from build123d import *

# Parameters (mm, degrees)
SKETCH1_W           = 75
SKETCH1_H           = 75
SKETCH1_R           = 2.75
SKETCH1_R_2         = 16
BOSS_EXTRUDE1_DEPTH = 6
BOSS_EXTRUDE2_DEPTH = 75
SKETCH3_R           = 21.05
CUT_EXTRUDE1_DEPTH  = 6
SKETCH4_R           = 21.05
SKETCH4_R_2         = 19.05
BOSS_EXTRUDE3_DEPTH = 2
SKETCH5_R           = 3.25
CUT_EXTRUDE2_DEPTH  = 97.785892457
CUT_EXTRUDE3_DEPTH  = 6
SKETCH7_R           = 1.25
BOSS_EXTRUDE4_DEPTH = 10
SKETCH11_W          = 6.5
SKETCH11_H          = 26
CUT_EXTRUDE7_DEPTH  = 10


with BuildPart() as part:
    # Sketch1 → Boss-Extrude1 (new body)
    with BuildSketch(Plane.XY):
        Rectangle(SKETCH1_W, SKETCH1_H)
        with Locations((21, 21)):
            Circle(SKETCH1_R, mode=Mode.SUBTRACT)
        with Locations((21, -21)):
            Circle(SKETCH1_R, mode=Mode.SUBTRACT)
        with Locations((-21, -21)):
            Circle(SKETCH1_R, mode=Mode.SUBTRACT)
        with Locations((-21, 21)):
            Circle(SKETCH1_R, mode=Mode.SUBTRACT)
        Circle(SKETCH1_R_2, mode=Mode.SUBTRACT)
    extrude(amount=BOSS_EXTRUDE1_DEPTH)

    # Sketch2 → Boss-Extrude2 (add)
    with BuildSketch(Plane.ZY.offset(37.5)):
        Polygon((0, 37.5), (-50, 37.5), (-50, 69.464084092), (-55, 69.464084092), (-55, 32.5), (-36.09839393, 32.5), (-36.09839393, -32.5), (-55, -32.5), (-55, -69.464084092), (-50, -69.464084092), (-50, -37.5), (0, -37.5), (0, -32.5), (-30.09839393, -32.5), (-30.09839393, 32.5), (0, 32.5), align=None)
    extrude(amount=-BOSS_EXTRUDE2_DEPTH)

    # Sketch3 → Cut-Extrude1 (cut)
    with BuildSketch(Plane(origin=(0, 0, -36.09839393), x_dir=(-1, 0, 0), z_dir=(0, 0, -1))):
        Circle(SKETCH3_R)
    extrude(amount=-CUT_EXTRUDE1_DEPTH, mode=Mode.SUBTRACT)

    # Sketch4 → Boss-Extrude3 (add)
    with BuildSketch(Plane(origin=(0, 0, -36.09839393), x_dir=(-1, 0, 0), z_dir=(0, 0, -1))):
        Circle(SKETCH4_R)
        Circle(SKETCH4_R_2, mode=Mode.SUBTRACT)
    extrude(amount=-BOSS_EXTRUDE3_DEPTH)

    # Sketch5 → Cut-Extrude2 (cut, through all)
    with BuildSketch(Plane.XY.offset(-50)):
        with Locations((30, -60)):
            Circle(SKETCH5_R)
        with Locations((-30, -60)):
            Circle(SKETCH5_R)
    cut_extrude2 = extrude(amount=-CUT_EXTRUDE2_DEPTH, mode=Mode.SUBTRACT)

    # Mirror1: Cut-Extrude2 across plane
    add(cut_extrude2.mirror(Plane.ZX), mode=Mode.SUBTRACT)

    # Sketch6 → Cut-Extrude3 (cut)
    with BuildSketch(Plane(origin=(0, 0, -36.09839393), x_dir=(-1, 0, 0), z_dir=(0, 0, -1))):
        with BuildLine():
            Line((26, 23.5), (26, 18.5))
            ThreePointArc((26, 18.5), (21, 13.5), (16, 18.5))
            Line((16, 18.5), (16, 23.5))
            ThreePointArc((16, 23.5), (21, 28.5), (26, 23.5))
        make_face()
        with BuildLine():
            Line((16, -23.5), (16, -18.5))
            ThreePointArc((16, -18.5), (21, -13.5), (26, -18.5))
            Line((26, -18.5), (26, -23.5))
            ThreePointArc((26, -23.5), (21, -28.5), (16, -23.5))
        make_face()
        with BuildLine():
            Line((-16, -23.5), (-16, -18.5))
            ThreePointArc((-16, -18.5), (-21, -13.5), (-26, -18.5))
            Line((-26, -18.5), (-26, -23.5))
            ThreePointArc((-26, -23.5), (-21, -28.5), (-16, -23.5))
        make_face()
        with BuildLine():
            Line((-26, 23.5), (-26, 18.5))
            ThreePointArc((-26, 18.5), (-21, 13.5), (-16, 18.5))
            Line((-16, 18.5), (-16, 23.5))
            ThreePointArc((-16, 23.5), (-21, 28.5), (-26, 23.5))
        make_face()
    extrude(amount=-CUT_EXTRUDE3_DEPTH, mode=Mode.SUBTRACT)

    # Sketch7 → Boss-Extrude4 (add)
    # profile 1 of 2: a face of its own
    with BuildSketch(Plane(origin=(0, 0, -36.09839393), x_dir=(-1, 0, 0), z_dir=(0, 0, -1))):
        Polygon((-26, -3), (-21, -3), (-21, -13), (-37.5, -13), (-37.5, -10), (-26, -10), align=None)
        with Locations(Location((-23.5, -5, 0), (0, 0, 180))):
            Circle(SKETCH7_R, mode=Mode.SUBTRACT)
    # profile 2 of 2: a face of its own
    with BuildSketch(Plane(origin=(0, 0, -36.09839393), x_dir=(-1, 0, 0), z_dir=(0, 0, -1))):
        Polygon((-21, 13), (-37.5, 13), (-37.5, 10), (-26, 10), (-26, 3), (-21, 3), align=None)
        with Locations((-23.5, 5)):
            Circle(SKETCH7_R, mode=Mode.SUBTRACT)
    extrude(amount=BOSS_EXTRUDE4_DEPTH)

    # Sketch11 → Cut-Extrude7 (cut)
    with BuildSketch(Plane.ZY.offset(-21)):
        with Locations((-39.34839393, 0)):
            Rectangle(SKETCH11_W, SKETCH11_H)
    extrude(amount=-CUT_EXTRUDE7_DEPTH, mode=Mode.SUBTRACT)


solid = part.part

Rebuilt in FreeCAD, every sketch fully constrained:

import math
import FreeCAD as App
import Part
import Sketcher
from FreeCAD import Vector
Q = App.Units.Quantity

doc = App.newDocument("Part")
body = doc.addObject("PartDesign::Body", "Body")

sketch1 = body.newObject("Sketcher::SketchObject", "Sketch")
sketch1.AttachmentSupport = (doc.getObject("XY_Plane"), [""])
sketch1.MapMode = "FlatFace"
sketch1.addGeometry(Part.LineSegment(Vector(-37.5, 37.5, 0), Vector(-37.5, -37.5, 0)), False)
sketch1.addGeometry(Part.LineSegment(Vector(-37.5, -37.5, 0), Vector(37.5, -37.5, 0)), False)
sketch1.addGeometry(Part.LineSegment(Vector(37.5, -37.5, 0), Vector(37.5, 37.5, 0)), False)
sketch1.addGeometry(Part.LineSegment(Vector(37.5, 37.5, 0), Vector(-37.5, 37.5, 0)), False)
sketch1.addGeometry(Part.Circle(Vector(-21, -21, 0), Vector(0, 0, 1), 2.8), False)
sketch1.addGeometry(Part.Circle(Vector(21, -21, 0), Vector(0, 0, 1), 2.8), False)
sketch1.addGeometry(Part.Circle(Vector(-21, 21, 0), Vector(0, 0, 1), 2.8), False)
sketch1.addGeometry(Part.Circle(Vector(0, 0, 0), Vector(0, 0, 1), 16), False)
sketch1.addGeometry(Part.Circle(Vector(21, 21, 0), Vector(0, 0, 1), 2.8), False)
sketch1.addConstraint(Sketcher.Constraint("Coincident", 0, 2, 1, 1))
sketch1.addConstraint(Sketcher.Constraint("Coincident", 1, 2, 2, 1))
sketch1.addConstraint(Sketcher.Constraint("Coincident", 2, 2, 3, 1))
sketch1.addConstraint(Sketcher.Constraint("Coincident", 3, 2, 0, 1))
sketch1.addConstraint(Sketcher.Constraint("Vertical", 0))
sketch1.addConstraint(Sketcher.Constraint("Horizontal", 1))
sketch1.addConstraint(Sketcher.Constraint("Vertical", 2))
sketch1.addConstraint(Sketcher.Constraint("Horizontal", 3))
sketch1.addConstraint(Sketcher.Constraint("Coincident", 7, 3, -1, 1))
sketch1.addConstraint(Sketcher.Constraint("Equal", 4, 5))
sketch1.addConstraint(Sketcher.Constraint("Equal", 5, 6))
sketch1.addConstraint(Sketcher.Constraint("Equal", 6, 8))
sketch1.addConstraint(Sketcher.Constraint("Symmetric", 5, 3, 6, 3, -1, 1))
sketch1.addConstraint(Sketcher.Constraint("Symmetric", 4, 3, 8, 3, -1, 1))
sketch1.addConstraint(Sketcher.Constraint("Symmetric", 0, 2, 2, 2, -1, 1))
sketch1.addConstraint(Sketcher.Constraint("Symmetric", 4, 3, 5, 3, -2))
sketch1.addConstraint(Sketcher.Constraint("Equal", 3, 0))
sketch1.addConstraint(Sketcher.Constraint("Diameter", 7, Q("32 mm")))
sketch1.addConstraint(Sketcher.Constraint("Diameter", 4, Q("5.5 mm")))
sketch1.addConstraint(Sketcher.Constraint("DistanceX", 1, 1, 1, 2, Q("75 mm")))
sketch1.addConstraint(Sketcher.Constraint("DistanceX", 4, 3, -1, 1, Q("21 mm")))
sketch1.addConstraint(Sketcher.Constraint("DistanceY", 4, 3, -1, 1, Q("21 mm")))
pad1 = body.newObject("PartDesign::Pad", "Pad")
pad1.Profile = sketch1
pad1.Length = 6

sketch2 = body.newObject("Sketcher::SketchObject", "Sketch001")
sketch2.AttachmentSupport = (doc.getObject("YZ_Plane"), [""])
sketch2.MapMode = "FlatFace"
sketch2.AttachmentOffset = App.Placement(Vector(0, 0, -37.5), App.Rotation())
sketch2.addGeometry(Part.LineSegment(Vector(38, 0, 0), Vector(38, -50, 0)), False)
sketch2.addGeometry(Part.LineSegment(Vector(38, -50, 0), Vector(69, -50, 0)), False)
sketch2.addGeometry(Part.LineSegment(Vector(69, -50, 0), Vector(69, -55, 0)), False)
sketch2.addGeometry(Part.LineSegment(Vector(69, -55, 0), Vector(32, -55, 0)), False)
sketch2.addGeometry(Part.LineSegment(Vector(32, -55, 0), Vector(32, -36, 0)), False)
sketch2.addGeometry(Part.LineSegment(Vector(32, -36, 0), Vector(-32, -36, 0)), False)
sketch2.addGeometry(Part.LineSegment(Vector(-32, -36, 0), Vector(-32, -55, 0)), False)
sketch2.addGeometry(Part.LineSegment(Vector(-32, -55, 0), Vector(-69, -55, 0)), False)
sketch2.addGeometry(Part.LineSegment(Vector(-69, -55, 0), Vector(-69, -50, 0)), False)
sketch2.addGeometry(Part.LineSegment(Vector(-69, -50, 0), Vector(-38, -50, 0)), False)
sketch2.addGeometry(Part.LineSegment(Vector(-38, -50, 0), Vector(-38, 0, 0)), False)
sketch2.addGeometry(Part.LineSegment(Vector(-38, 0, 0), Vector(-32, 0, 0)), False)
sketch2.addGeometry(Part.LineSegment(Vector(-32, 0, 0), Vector(-32, -30, 0)), False)
sketch2.addGeometry(Part.LineSegment(Vector(-32, -30, 0), Vector(32, -30, 0)), False)
sketch2.addGeometry(Part.LineSegment(Vector(32, -30, 0), Vector(32, 0, 0)), False)
sketch2.addGeometry(Part.LineSegment(Vector(32, 0, 0), Vector(38, 0, 0)), False)
sketch2.addConstraint(Sketcher.Constraint("Coincident", 0, 2, 1, 1))
sketch2.addConstraint(Sketcher.Constraint("Coincident", 1, 2, 2, 1))
sketch2.addConstraint(Sketcher.Constraint("Coincident", 2, 2, 3, 1))
sketch2.addConstraint(Sketcher.Constraint("Coincident", 3, 2, 4, 1))
sketch2.addConstraint(Sketcher.Constraint("Coincident", 4, 2, 5, 1))
sketch2.addConstraint(Sketcher.Constraint("Coincident", 5, 2, 6, 1))
sketch2.addConstraint(Sketcher.Constraint("Coincident", 6, 2, 7, 1))
sketch2.addConstraint(Sketcher.Constraint("Coincident", 7, 2, 8, 1))
sketch2.addConstraint(Sketcher.Constraint("Coincident", 8, 2, 9, 1))
sketch2.addConstraint(Sketcher.Constraint("Coincident", 9, 2, 10, 1))
sketch2.addConstraint(Sketcher.Constraint("Coincident", 10, 2, 11, 1))
sketch2.addConstraint(Sketcher.Constraint("Coincident", 11, 2, 12, 1))
sketch2.addConstraint(Sketcher.Constraint("Coincident", 12, 2, 13, 1))
sketch2.addConstraint(Sketcher.Constraint("Coincident", 13, 2, 14, 1))
sketch2.addConstraint(Sketcher.Constraint("Coincident", 14, 2, 15, 1))
sketch2.addConstraint(Sketcher.Constraint("Coincident", 15, 2, 0, 1))
sketch2.addConstraint(Sketcher.Constraint("Vertical", 0))
sketch2.addConstraint(Sketcher.Constraint("Horizontal", 1))
sketch2.addConstraint(Sketcher.Constraint("Vertical", 2))
sketch2.addConstraint(Sketcher.Constraint("Horizontal", 3))
sketch2.addConstraint(Sketcher.Constraint("Vertical", 4))
sketch2.addConstraint(Sketcher.Constraint("Horizontal", 5))
sketch2.addConstraint(Sketcher.Constraint("Vertical", 6))
sketch2.addConstraint(Sketcher.Constraint("Horizontal", 7))
sketch2.addConstraint(Sketcher.Constraint("Vertical", 8))
sketch2.addConstraint(Sketcher.Constraint("Horizontal", 9))
sketch2.addConstraint(Sketcher.Constraint("Vertical", 10))
sketch2.addConstraint(Sketcher.Constraint("Horizontal", 11))
sketch2.addConstraint(Sketcher.Constraint("Vertical", 12))
sketch2.addConstraint(Sketcher.Constraint("Horizontal", 13))
sketch2.addConstraint(Sketcher.Constraint("Vertical", 14))
sketch2.addConstraint(Sketcher.Constraint("Horizontal", 15))
sketch2.addConstraint(Sketcher.Constraint("Symmetric", 11, 2, 14, 2, -1, 1))
sketch2.addConstraint(Sketcher.Constraint("Symmetric", 3, 2, 6, 2, -2))
sketch2.addConstraint(Sketcher.Constraint("Symmetric", 1, 2, 8, 2, -2))
sketch2.addConstraint(Sketcher.Constraint("Symmetric", 10, 2, 15, 2, -2))
sketch2.addConstraint(Sketcher.Constraint("Vertical", 6, 2, 11, 2))
sketch2.addConstraint(Sketcher.Constraint("Equal", 15, 2))
sketch2.addConstraint(Sketcher.Constraint("DistanceX", 5, 2, 5, 1, Q("65 mm")))
sketch2.addConstraint(Sketcher.Constraint("DistanceX", 11, 1, 11, 2, Q("5 mm")))
sketch2.addConstraint(Sketcher.Constraint("DistanceY", 0, 2, 0, 1, Q("50 mm")))
sketch2.addConstraint(Sketcher.Constraint("DistanceY", 5, 2, 12, 2, Q("6 mm")))
sketch2.addConstraint(Sketcher.Constraint("DistanceX", 1, 1, 1, 2, Q("31.964084 mm")))
sketch2.addConstraint(Sketcher.Constraint("DistanceY", 4, 1, 4, 2, Q("18.901606 mm")))
pad2 = body.newObject("PartDesign::Pad", "Pad001")
pad2.Profile = sketch2
pad2.Length = 75

sketch3 = body.newObject("Sketcher::SketchObject", "Sketch002")
sketch3.AttachmentSupport = (doc.getObject("XY_Plane"), [""])
sketch3.MapMode = "FlatFace"
sketch3.AttachmentOffset = App.Placement(Vector(0, 0, -36.098394), App.Rotation())
sketch3.addGeometry(Part.Circle(Vector(0, 0, 0), Vector(0, 0, 1), 21), False)
sketch3.addConstraint(Sketcher.Constraint("Coincident", 0, 3, -1, 1))
sketch3.addConstraint(Sketcher.Constraint("Diameter", 0, Q("42.1 mm")))
pocket1 = body.newObject("PartDesign::Pocket", "Pocket")
pocket1.Profile = sketch3
pocket1.Length = 6
pocket1.Reversed = True

sketch4 = body.newObject("Sketcher::SketchObject", "Sketch003")
sketch4.AttachmentSupport = (doc.getObject("XY_Plane"), [""])
sketch4.MapMode = "FlatFace"
sketch4.AttachmentOffset = App.Placement(Vector(0, 0, -36.098394), App.Rotation())
sketch4.addGeometry(Part.Circle(Vector(0, 0, 0), Vector(0, 0, 1), 21), False)
sketch4.addGeometry(Part.Circle(Vector(0, 0, 0), Vector(0, 0, 1), 19), False)
sketch4.addConstraint(Sketcher.Constraint("Coincident", 0, 3, -1, 1))
sketch4.addConstraint(Sketcher.Constraint("Coincident", 1, 3, -1, 1))
sketch4.addConstraint(Sketcher.Constraint("Diameter", 0, Q("42.1 mm")))
sketch4.addConstraint(Sketcher.Constraint("Diameter", 1, Q("38.1 mm")))
pad3 = body.newObject("PartDesign::Pad", "Pad002")
pad3.Profile = sketch4
pad3.Length = 2

sketch5 = body.newObject("Sketcher::SketchObject", "Sketch004")
sketch5.AttachmentSupport = (doc.getObject("XY_Plane"), [""])
sketch5.MapMode = "FlatFace"
sketch5.AttachmentOffset = App.Placement(Vector(0, 0, -50), App.Rotation())
sketch5.addGeometry(Part.Circle(Vector(30, -60, 0), Vector(0, 0, 1), 3.2), False)
sketch5.addGeometry(Part.Circle(Vector(-30, -60, 0), Vector(0, 0, 1), 3.2), False)
sketch5.addConstraint(Sketcher.Constraint("Equal", 0, 1))
sketch5.addConstraint(Sketcher.Constraint("Symmetric", 0, 3, 1, 3, -2))
sketch5.addConstraint(Sketcher.Constraint("Diameter", 0, Q("6.5 mm")))
sketch5.addConstraint(Sketcher.Constraint("DistanceX", -1, 1, 0, 3, Q("30 mm")))
sketch5.addConstraint(Sketcher.Constraint("DistanceY", 0, 3, -1, 1, Q("60 mm")))
pocket2 = body.newObject("PartDesign::Pocket", "Pocket001")
pocket2.Profile = sketch5
pocket2.Type = "ThroughAll"
doc.recompute()

mirrored = body.newObject("PartDesign::Mirrored", "Mirrored")
mirrored.Originals = [pocket2]
mirrored.MirrorPlane = (doc.getObject("XZ_Plane"), [""])
body.Tip = mirrored

sketch6 = body.newObject("Sketcher::SketchObject", "Sketch005")
sketch6.AttachmentSupport = (doc.getObject("XY_Plane"), [""])
sketch6.MapMode = "FlatFace"
sketch6.AttachmentOffset = App.Placement(Vector(0, 0, -36.098394), App.Rotation())
sketch6.addGeometry(Part.LineSegment(Vector(-26, 18, 0), Vector(-26, 24, 0)), False)
sketch6.addGeometry(Part.ArcOfCircle(Part.Circle(Vector(-21, 24, 0), Vector(0, 0, 1), 5), math.radians(0), math.radians(180)), False)
sketch6.addGeometry(Part.LineSegment(Vector(-16, 24, 0), Vector(-16, 18, 0)), False)
sketch6.addGeometry(Part.ArcOfCircle(Part.Circle(Vector(-21, 18, 0), Vector(0, 0, 1), 5), math.radians(180), math.radians(360)), False)
sketch6.addGeometry(Part.LineSegment(Vector(-16, -18, 0), Vector(-16, -24, 0)), False)
sketch6.addGeometry(Part.ArcOfCircle(Part.Circle(Vector(-21, -24, 0), Vector(0, 0, 1), 5), math.radians(180), math.radians(360)), False)
sketch6.addGeometry(Part.LineSegment(Vector(-26, -24, 0), Vector(-26, -18, 0)), False)
sketch6.addGeometry(Part.ArcOfCircle(Part.Circle(Vector(-21, -18, 0), Vector(0, 0, 1), 5), math.radians(0), math.radians(180)), False)
sketch6.addGeometry(Part.LineSegment(Vector(16, -24, 0), Vector(16, -18, 0)), False)
sketch6.addGeometry(Part.ArcOfCircle(Part.Circle(Vector(21, -18, 0), Vector(0, 0, 1), 5), math.radians(0), math.radians(180)), False)
sketch6.addGeometry(Part.LineSegment(Vector(26, -18, 0), Vector(26, -24, 0)), False)
sketch6.addGeometry(Part.ArcOfCircle(Part.Circle(Vector(21, -24, 0), Vector(0, 0, 1), 5), math.radians(180), math.radians(360)), False)
sketch6.addGeometry(Part.LineSegment(Vector(26, 24, 0), Vector(26, 18, 0)), False)
sketch6.addGeometry(Part.ArcOfCircle(Part.Circle(Vector(21, 18, 0), Vector(0, 0, 1), 5), math.radians(180), math.radians(360)), False)
sketch6.addGeometry(Part.LineSegment(Vector(16, 18, 0), Vector(16, 24, 0)), False)
sketch6.addGeometry(Part.ArcOfCircle(Part.Circle(Vector(21, 24, 0), Vector(0, 0, 1), 5), math.radians(0), math.radians(180)), False)
sketch6.addConstraint(Sketcher.Constraint("Tangent", 0, 2, 1, 2))
sketch6.addConstraint(Sketcher.Constraint("Tangent", 1, 1, 2, 1))
sketch6.addConstraint(Sketcher.Constraint("Tangent", 2, 2, 3, 2))
sketch6.addConstraint(Sketcher.Constraint("Tangent", 3, 1, 0, 1))
sketch6.addConstraint(Sketcher.Constraint("Tangent", 4, 2, 5, 2))
sketch6.addConstraint(Sketcher.Constraint("Tangent", 5, 1, 6, 1))
sketch6.addConstraint(Sketcher.Constraint("Tangent", 6, 2, 7, 2))
sketch6.addConstraint(Sketcher.Constraint("Tangent", 7, 1, 4, 1))
sketch6.addConstraint(Sketcher.Constraint("Tangent", 8, 2, 9, 2))
sketch6.addConstraint(Sketcher.Constraint("Tangent", 9, 1, 10, 1))
sketch6.addConstraint(Sketcher.Constraint("Tangent", 10, 2, 11, 2))
sketch6.addConstraint(Sketcher.Constraint("Tangent", 11, 1, 8, 1))
sketch6.addConstraint(Sketcher.Constraint("Tangent", 12, 2, 13, 2))
sketch6.addConstraint(Sketcher.Constraint("Tangent", 13, 1, 14, 1))
sketch6.addConstraint(Sketcher.Constraint("Tangent", 14, 2, 15, 2))
sketch6.addConstraint(Sketcher.Constraint("Tangent", 15, 1, 12, 1))
sketch6.addConstraint(Sketcher.Constraint("Vertical", 0))
sketch6.addConstraint(Sketcher.Constraint("Vertical", 2))
sketch6.addConstraint(Sketcher.Constraint("Vertical", 4))
sketch6.addConstraint(Sketcher.Constraint("Vertical", 6))
sketch6.addConstraint(Sketcher.Constraint("Vertical", 8))
sketch6.addConstraint(Sketcher.Constraint("Vertical", 10))
sketch6.addConstraint(Sketcher.Constraint("Vertical", 12))
sketch6.addConstraint(Sketcher.Constraint("Vertical", 14))
sketch6.addConstraint(Sketcher.Constraint("Equal", 3, 5))
sketch6.addConstraint(Sketcher.Constraint("Equal", 7, 9))
sketch6.addConstraint(Sketcher.Constraint("Equal", 11, 13))
sketch6.addConstraint(Sketcher.Constraint("Symmetric", 3, 3, 9, 3, -1, 1))
sketch6.addConstraint(Sketcher.Constraint("Symmetric", 7, 3, 13, 3, -1, 1))
sketch6.addConstraint(Sketcher.Constraint("Symmetric", 7, 3, 9, 3, -2))
sketch6.addConstraint(Sketcher.Constraint("Horizontal", 5, 3, 11, 3))
sketch6.addConstraint(Sketcher.Constraint("Horizontal", 1, 3, 15, 3))
sketch6.addConstraint(Sketcher.Constraint("Equal", 2, 4))
sketch6.addConstraint(Sketcher.Constraint("Radius", 1, Q("5 mm")))
sketch6.addConstraint(Sketcher.Constraint("DistanceY", 0, 1, 0, 2, Q("5 mm")))
sketch6.addConstraint(Sketcher.Constraint("DistanceX", 1, 3, -1, 1, Q("21 mm")))
sketch6.addConstraint(Sketcher.Constraint("DistanceY", 5, 3, 3, 3, Q("42 mm")))
pocket3 = body.newObject("PartDesign::Pocket", "Pocket002")
pocket3.Profile = sketch6
pocket3.Length = 6
pocket3.Reversed = True

sketch7 = body.newObject("Sketcher::SketchObject", "Sketch006")
sketch7.AttachmentSupport = (doc.getObject("XY_Plane"), [""])
sketch7.MapMode = "FlatFace"
sketch7.AttachmentOffset = App.Placement(Vector(0, 0, -36.098394), App.Rotation())
sketch7.addGeometry(Part.LineSegment(Vector(21, -3, 0), Vector(26, -3, 0)), False)
sketch7.addGeometry(Part.LineSegment(Vector(26, -3, 0), Vector(26, -10, 0)), False)
sketch7.addGeometry(Part.LineSegment(Vector(26, -10, 0), Vector(37.5, -10, 0)), False)
sketch7.addGeometry(Part.LineSegment(Vector(37.5, -10, 0), Vector(37.5, -13, 0)), False)
sketch7.addGeometry(Part.LineSegment(Vector(37.5, -13, 0), Vector(21, -13, 0)), False)
sketch7.addGeometry(Part.LineSegment(Vector(21, -13, 0), Vector(21, -3, 0)), False)
sketch7.addGeometry(Part.Circle(Vector(23.5, -5, 0), Vector(0, 0, 1), 1.2), False)
sketch7.addGeometry(Part.LineSegment(Vector(21, 13, 0), Vector(37.5, 13, 0)), False)
sketch7.addGeometry(Part.LineSegment(Vector(37.5, 13, 0), Vector(37.5, 10, 0)), False)
sketch7.addGeometry(Part.LineSegment(Vector(37.5, 10, 0), Vector(26, 10, 0)), False)
sketch7.addGeometry(Part.LineSegment(Vector(26, 10, 0), Vector(26, 3, 0)), False)
sketch7.addGeometry(Part.LineSegment(Vector(26, 3, 0), Vector(21, 3, 0)), False)
sketch7.addGeometry(Part.LineSegment(Vector(21, 3, 0), Vector(21, 13, 0)), False)
sketch7.addGeometry(Part.Circle(Vector(23.5, 5, 0), Vector(0, 0, 1), 1.2), False)
sketch7.addConstraint(Sketcher.Constraint("Coincident", 0, 2, 1, 1))
sketch7.addConstraint(Sketcher.Constraint("Coincident", 1, 2, 2, 1))
sketch7.addConstraint(Sketcher.Constraint("Coincident", 2, 2, 3, 1))
sketch7.addConstraint(Sketcher.Constraint("Coincident", 3, 2, 4, 1))
sketch7.addConstraint(Sketcher.Constraint("Coincident", 4, 2, 5, 1))
sketch7.addConstraint(Sketcher.Constraint("Coincident", 5, 2, 0, 1))
sketch7.addConstraint(Sketcher.Constraint("Coincident", 7, 2, 8, 1))
sketch7.addConstraint(Sketcher.Constraint("Coincident", 8, 2, 9, 1))
sketch7.addConstraint(Sketcher.Constraint("Coincident", 9, 2, 10, 1))
sketch7.addConstraint(Sketcher.Constraint("Coincident", 10, 2, 11, 1))
sketch7.addConstraint(Sketcher.Constraint("Coincident", 11, 2, 12, 1))
sketch7.addConstraint(Sketcher.Constraint("Coincident", 12, 2, 7, 1))
sketch7.addConstraint(Sketcher.Constraint("Horizontal", 0))
sketch7.addConstraint(Sketcher.Constraint("Vertical", 1))
sketch7.addConstraint(Sketcher.Constraint("Horizontal", 2))
sketch7.addConstraint(Sketcher.Constraint("Vertical", 3))
sketch7.addConstraint(Sketcher.Constraint("Horizontal", 4))
sketch7.addConstraint(Sketcher.Constraint("Vertical", 5))
sketch7.addConstraint(Sketcher.Constraint("Horizontal", 7))
sketch7.addConstraint(Sketcher.Constraint("Vertical", 8))
sketch7.addConstraint(Sketcher.Constraint("Horizontal", 9))
sketch7.addConstraint(Sketcher.Constraint("Vertical", 10))
sketch7.addConstraint(Sketcher.Constraint("Horizontal", 11))
sketch7.addConstraint(Sketcher.Constraint("Vertical", 12))
sketch7.addConstraint(Sketcher.Constraint("Equal", 6, 13))
sketch7.addConstraint(Sketcher.Constraint("Symmetric", 6, 3, 13, 3, -1))
sketch7.addConstraint(Sketcher.Constraint("Symmetric", 3, 2, 7, 2, -1))
sketch7.addConstraint(Sketcher.Constraint("Symmetric", 1, 2, 9, 2, -1))
sketch7.addConstraint(Sketcher.Constraint("Symmetric", 5, 2, 11, 2, -1))
sketch7.addConstraint(Sketcher.Constraint("Diameter", 6, Q("2.5 mm")))
sketch7.addConstraint(Sketcher.Constraint("DistanceX", 0, 1, 0, 2, Q("5 mm")))
sketch7.addConstraint(Sketcher.Constraint("DistanceY", 1, 2, 1, 1, Q("7 mm")))
sketch7.addConstraint(Sketcher.Constraint("DistanceY", 3, 2, 3, 1, Q("3 mm")))
sketch7.addConstraint(Sketcher.Constraint("DistanceX", 2, 1, 2, 2, Q("11.5 mm")))
sketch7.addConstraint(Sketcher.Constraint("DistanceY", 6, 3, -1, 1, Q("5 mm")))
sketch7.addConstraint(Sketcher.Constraint("DistanceX", -1, 1, 0, 2, Q("26 mm")))
sketch7.addConstraint(Sketcher.Constraint("DistanceY", 0, 2, -1, 1, Q("3 mm")))
sketch7.addConstraint(Sketcher.Constraint("DistanceX", 6, 3, 2, 2, Q("14 mm")))
pad4 = body.newObject("PartDesign::Pad", "Pad003")
pad4.Profile = sketch7
pad4.Length = 10
pad4.Reversed = True

sketch8 = body.newObject("Sketcher::SketchObject", "Sketch007")
sketch8.AttachmentSupport = (doc.getObject("YZ_Plane"), [""])
sketch8.MapMode = "FlatFace"
sketch8.AttachmentOffset = App.Placement(Vector(0, 0, 21), App.Rotation())
sketch8.addGeometry(Part.LineSegment(Vector(13, -43, 0), Vector(-13, -43, 0)), False)
sketch8.addGeometry(Part.LineSegment(Vector(-13, -43, 0), Vector(-13, -36, 0)), False)
sketch8.addGeometry(Part.LineSegment(Vector(-13, -36, 0), Vector(13, -36, 0)), False)
sketch8.addGeometry(Part.LineSegment(Vector(13, -36, 0), Vector(13, -43, 0)), False)
sketch8.addConstraint(Sketcher.Constraint("Coincident", 0, 2, 1, 1))
sketch8.addConstraint(Sketcher.Constraint("Coincident", 1, 2, 2, 1))
sketch8.addConstraint(Sketcher.Constraint("Coincident", 2, 2, 3, 1))
sketch8.addConstraint(Sketcher.Constraint("Coincident", 3, 2, 0, 1))
sketch8.addConstraint(Sketcher.Constraint("Horizontal", 0))
sketch8.addConstraint(Sketcher.Constraint("Vertical", 1))
sketch8.addConstraint(Sketcher.Constraint("Horizontal", 2))
sketch8.addConstraint(Sketcher.Constraint("Vertical", 3))
sketch8.addConstraint(Sketcher.Constraint("DistanceX", 0, 2, 0, 1, Q("26 mm")))
sketch8.addConstraint(Sketcher.Constraint("DistanceY", 1, 1, 1, 2, Q("6.5 mm")))
sketch8.addConstraint(Sketcher.Constraint("DistanceX", 0, 2, -1, 1, Q("13 mm")))
sketch8.addConstraint(Sketcher.Constraint("DistanceY", 0, 2, -1, 1, Q("42.598394 mm")))
pocket4 = body.newObject("PartDesign::Pocket", "Pocket003")
pocket4.Profile = sketch8
pocket4.Length = 10
pocket4.Reversed = True

doc.recompute()
